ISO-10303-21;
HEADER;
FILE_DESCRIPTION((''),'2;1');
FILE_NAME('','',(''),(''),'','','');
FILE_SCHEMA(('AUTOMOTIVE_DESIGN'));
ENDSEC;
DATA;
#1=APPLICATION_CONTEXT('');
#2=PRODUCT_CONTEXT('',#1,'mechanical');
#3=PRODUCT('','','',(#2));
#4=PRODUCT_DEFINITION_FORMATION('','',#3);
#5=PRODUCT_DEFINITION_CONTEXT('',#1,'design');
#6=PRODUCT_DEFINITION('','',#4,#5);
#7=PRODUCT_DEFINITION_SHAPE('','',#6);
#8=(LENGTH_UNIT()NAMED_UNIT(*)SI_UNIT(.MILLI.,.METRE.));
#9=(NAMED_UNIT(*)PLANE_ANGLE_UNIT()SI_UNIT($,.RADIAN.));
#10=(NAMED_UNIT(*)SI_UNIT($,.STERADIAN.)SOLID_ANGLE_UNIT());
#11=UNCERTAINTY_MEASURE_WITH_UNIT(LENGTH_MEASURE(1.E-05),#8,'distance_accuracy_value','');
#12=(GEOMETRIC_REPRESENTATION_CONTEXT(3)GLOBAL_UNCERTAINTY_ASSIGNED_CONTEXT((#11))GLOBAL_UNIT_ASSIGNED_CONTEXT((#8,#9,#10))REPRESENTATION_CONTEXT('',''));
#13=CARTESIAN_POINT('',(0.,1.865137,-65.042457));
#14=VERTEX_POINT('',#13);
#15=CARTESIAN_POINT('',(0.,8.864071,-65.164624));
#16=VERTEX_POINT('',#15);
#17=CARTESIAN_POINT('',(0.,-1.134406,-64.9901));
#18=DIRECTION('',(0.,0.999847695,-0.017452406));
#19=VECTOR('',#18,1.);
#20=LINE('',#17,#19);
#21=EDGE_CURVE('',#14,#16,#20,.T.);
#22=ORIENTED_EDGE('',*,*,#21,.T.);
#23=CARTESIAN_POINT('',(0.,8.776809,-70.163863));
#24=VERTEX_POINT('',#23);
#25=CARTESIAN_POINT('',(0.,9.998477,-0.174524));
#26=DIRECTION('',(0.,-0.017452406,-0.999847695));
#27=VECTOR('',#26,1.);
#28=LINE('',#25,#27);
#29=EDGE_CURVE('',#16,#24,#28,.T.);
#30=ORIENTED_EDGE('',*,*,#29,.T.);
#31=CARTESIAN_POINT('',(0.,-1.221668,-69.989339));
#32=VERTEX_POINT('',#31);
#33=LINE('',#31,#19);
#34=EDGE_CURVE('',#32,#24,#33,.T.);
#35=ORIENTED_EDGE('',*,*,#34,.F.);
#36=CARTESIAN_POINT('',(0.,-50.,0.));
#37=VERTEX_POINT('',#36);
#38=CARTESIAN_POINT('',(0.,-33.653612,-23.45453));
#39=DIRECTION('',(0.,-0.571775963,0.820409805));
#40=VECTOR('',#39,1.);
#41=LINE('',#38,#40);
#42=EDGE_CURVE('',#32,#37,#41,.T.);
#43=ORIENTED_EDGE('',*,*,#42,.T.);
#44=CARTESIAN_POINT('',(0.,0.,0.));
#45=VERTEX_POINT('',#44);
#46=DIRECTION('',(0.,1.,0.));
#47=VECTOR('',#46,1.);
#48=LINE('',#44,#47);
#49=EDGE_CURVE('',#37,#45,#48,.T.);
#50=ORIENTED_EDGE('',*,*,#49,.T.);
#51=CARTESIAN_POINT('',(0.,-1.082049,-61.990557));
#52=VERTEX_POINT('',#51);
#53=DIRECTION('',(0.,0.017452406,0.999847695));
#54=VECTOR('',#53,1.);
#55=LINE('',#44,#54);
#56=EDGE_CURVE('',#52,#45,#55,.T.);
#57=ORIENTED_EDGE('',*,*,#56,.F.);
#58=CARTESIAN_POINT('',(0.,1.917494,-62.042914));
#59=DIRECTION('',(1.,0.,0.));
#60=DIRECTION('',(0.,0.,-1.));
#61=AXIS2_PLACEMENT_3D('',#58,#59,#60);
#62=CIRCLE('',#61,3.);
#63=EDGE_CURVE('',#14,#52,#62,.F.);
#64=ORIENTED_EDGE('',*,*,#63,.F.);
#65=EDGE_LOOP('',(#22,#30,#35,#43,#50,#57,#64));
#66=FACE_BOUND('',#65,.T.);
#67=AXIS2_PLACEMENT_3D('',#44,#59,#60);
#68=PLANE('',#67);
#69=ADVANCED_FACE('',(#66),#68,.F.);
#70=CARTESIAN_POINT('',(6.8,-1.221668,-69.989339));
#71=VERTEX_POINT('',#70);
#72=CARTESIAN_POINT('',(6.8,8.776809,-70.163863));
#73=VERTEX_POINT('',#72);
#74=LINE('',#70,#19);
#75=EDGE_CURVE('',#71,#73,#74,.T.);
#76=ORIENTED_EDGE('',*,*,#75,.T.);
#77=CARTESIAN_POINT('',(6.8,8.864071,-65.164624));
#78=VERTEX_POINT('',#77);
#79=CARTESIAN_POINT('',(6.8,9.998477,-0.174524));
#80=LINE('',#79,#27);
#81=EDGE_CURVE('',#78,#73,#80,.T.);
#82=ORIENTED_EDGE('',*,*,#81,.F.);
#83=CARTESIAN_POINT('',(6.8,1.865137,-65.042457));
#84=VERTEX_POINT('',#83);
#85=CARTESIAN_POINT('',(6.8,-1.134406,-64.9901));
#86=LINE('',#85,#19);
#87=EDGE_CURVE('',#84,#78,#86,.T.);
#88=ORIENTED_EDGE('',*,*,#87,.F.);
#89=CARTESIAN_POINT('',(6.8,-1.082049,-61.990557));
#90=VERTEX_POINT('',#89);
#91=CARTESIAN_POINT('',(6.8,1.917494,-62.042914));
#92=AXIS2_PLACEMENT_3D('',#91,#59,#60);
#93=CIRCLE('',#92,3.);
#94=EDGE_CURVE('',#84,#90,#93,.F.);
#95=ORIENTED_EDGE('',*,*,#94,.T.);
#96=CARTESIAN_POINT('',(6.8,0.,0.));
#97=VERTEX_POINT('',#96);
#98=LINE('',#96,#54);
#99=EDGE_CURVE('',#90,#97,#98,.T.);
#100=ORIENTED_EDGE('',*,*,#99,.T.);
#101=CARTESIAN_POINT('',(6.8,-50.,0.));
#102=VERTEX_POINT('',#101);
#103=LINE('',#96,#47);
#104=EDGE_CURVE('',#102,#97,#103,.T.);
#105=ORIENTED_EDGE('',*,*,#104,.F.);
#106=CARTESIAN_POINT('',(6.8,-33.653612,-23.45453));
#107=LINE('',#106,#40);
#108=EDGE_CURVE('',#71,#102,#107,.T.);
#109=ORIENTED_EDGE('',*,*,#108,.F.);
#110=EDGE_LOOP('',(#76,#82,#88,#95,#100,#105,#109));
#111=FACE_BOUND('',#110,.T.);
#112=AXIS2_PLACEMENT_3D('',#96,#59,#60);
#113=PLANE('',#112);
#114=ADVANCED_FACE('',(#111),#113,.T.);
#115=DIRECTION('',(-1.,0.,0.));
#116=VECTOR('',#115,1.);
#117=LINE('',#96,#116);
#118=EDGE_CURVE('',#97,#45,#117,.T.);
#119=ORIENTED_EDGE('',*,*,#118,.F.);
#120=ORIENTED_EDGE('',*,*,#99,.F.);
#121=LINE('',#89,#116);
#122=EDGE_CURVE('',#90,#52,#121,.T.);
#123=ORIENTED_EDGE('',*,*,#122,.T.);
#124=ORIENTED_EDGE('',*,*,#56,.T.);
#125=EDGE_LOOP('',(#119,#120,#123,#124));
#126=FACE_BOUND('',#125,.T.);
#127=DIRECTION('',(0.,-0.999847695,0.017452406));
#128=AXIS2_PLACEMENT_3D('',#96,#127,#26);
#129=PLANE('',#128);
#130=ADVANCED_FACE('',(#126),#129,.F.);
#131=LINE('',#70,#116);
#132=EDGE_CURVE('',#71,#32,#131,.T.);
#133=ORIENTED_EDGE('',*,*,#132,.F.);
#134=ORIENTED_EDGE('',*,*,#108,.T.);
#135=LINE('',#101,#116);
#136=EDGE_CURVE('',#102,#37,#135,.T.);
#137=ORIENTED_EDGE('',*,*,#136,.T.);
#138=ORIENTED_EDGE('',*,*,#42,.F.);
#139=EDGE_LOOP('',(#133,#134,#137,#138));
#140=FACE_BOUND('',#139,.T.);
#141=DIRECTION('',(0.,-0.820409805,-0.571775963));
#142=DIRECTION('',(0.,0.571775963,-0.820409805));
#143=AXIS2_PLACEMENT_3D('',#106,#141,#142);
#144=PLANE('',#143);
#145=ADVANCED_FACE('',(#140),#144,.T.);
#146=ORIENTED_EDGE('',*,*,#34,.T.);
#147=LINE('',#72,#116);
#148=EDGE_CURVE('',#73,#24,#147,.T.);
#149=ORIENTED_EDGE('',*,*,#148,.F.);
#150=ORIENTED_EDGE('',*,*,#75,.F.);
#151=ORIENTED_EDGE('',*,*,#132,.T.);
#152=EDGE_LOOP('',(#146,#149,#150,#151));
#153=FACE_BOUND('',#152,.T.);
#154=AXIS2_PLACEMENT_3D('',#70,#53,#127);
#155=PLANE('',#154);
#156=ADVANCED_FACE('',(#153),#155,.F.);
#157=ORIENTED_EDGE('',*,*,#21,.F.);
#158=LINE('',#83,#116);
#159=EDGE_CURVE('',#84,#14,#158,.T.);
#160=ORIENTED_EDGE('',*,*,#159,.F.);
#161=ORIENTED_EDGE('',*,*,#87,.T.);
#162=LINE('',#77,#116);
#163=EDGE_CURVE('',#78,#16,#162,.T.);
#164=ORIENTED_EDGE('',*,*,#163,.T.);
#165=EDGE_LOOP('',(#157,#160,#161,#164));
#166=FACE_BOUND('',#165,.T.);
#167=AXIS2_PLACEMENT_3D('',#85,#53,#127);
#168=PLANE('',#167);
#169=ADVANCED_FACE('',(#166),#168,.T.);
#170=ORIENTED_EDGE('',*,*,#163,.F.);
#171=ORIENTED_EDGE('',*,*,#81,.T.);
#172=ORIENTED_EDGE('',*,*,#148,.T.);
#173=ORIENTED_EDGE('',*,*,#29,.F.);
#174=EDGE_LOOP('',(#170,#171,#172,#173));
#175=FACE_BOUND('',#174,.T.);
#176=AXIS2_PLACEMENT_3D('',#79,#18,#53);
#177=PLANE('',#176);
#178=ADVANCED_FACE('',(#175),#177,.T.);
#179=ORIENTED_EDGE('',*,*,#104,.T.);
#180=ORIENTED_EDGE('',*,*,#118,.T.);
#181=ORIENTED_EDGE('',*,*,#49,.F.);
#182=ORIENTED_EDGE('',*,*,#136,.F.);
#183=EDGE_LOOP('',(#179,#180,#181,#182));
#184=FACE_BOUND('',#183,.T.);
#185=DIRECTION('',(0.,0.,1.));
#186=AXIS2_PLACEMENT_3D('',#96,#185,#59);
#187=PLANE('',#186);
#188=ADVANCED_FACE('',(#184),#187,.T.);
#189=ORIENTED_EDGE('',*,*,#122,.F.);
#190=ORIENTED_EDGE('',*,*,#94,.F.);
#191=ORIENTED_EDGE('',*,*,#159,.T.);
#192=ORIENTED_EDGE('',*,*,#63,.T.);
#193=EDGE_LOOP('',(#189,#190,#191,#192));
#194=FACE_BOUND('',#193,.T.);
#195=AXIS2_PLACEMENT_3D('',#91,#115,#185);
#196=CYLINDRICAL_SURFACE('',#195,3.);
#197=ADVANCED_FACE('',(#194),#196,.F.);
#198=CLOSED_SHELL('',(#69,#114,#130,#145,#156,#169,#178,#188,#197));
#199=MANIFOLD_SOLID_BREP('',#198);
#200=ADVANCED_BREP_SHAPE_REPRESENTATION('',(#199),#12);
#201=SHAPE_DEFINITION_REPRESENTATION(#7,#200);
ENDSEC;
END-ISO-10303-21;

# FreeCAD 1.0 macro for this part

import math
import FreeCAD as App
import Part
import Sketcher
Q = App.Units.Quantity

doc = App.newDocument("Part")
params = doc.addObject("Spreadsheet::Sheet", "Params")
for row, (alias, value) in enumerate([
    ("sketch1_radius", "3 mm"),
    ("sketch1_width", "50 mm"),
    ("sketch1_length", "7 mm"),
    ("sketch1_length2", "62 mm"),
    ("sketch1_length3", "10 mm"),
    ("pad1_length", "6.8 mm"),
], start=1):
    params.set(f"A{row}", alias)
    params.set(f"B{row}", "=" + value)
    params.setAlias(f"B{row}", alias)

body = doc.addObject("PartDesign::Body", "Body")

sketch1 = body.newObject("Sketcher::SketchObject", "Sketch")
sketch1.AttachmentSupport = (doc.getObject("YZ_Plane"), [""])
sketch1.MapMode = "FlatFace"
sketch1.addGeometry(Part.LineSegment(App.Vector(8.9, -65.2, 0), App.Vector(1.9, -65, 0)), False)
sketch1.addGeometry(Part.ArcOfCircle(Part.Circle(App.Vector(1.9, -62, 0), App.Vector(0, 0, 1), 3), math.radians(179), math.radians(269)), False)
sketch1.addGeometry(Part.LineSegment(App.Vector(-1.1, -62, 0), App.Vector(0, 0, 0)), False)
sketch1.addGeometry(Part.LineSegment(App.Vector(0, 0, 0), App.Vector(-50, 0, 0)), False)
sketch1.addGeometry(Part.LineSegment(App.Vector(-50, 0, 0), App.Vector(-1.2, -70, 0)), False)
sketch1.addGeometry(Part.LineSegment(App.Vector(-1.2, -70, 0), App.Vector(8.8, -70.2, 0)), False)
sketch1.addGeometry(Part.LineSegment(App.Vector(8.8, -70.2, 0), App.Vector(8.9, -65.2, 0)), False)
sketch1.addConstraint(Sketcher.Constraint("Tangent", 0, 2, 1, 2))
sketch1.addConstraint(Sketcher.Constraint("Tangent", 1, 1, 2, 1))
sketch1.addConstraint(Sketcher.Constraint("Coincident", 2, 2, 3, 1))
sketch1.addConstraint(Sketcher.Constraint("Coincident", 3, 2, 4, 1))
sketch1.addConstraint(Sketcher.Constraint("Coincident", 4, 2, 5, 1))
sketch1.addConstraint(Sketcher.Constraint("Coincident", 5, 2, 6, 1))
sketch1.addConstraint(Sketcher.Constraint("Coincident", 6, 2, 0, 1))
sketch1.addConstraint(Sketcher.Constraint("Horizontal", 3))
sketch1.addConstraint(Sketcher.Constraint("Coincident", 2, 2, -1, 1))
sketch1.addConstraint(Sketcher.Constraint("Perpendicular", 0, 2))
sketch1.addConstraint(Sketcher.Constraint("Perpendicular", 2, 5))
sketch1.addConstraint(Sketcher.Constraint("Perpendicular", 5, 6))
sketch1.addConstraint(Sketcher.Constraint("Radius", 1, 3.0))
sketch1.addConstraint(Sketcher.Constraint("DistanceX", 3, 2, 3, 1, 50.0))
sketch1.addConstraint(Sketcher.Constraint("Angle", 0, Q("179 deg")))
sketch1.addConstraint(Sketcher.Constraint("Distance", 0, 7.0))
sketch1.addConstraint(Sketcher.Constraint("Distance", 2, 62.0))
sketch1.addConstraint(Sketcher.Constraint("Distance", 5, 10.0))
sketch1.addConstraint(Sketcher.Constraint("Distance", 6, 5.0))
sketch1.setExpression("Constraints[12]", "Params.sketch1_radius")
sketch1.setExpression("Constraints[13]", "Params.sketch1_width")
sketch1.setExpression("Constraints[15]", "Params.sketch1_length")
sketch1.setExpression("Constraints[16]", "Params.sketch1_length2")
sketch1.setExpression("Constraints[17]", "Params.sketch1_length3")
pad1 = body.newObject("PartDesign::Pad", "Pad")
pad1.Profile = sketch1
pad1.setExpression("Length", "Params.pad1_length")

doc.recompute()
